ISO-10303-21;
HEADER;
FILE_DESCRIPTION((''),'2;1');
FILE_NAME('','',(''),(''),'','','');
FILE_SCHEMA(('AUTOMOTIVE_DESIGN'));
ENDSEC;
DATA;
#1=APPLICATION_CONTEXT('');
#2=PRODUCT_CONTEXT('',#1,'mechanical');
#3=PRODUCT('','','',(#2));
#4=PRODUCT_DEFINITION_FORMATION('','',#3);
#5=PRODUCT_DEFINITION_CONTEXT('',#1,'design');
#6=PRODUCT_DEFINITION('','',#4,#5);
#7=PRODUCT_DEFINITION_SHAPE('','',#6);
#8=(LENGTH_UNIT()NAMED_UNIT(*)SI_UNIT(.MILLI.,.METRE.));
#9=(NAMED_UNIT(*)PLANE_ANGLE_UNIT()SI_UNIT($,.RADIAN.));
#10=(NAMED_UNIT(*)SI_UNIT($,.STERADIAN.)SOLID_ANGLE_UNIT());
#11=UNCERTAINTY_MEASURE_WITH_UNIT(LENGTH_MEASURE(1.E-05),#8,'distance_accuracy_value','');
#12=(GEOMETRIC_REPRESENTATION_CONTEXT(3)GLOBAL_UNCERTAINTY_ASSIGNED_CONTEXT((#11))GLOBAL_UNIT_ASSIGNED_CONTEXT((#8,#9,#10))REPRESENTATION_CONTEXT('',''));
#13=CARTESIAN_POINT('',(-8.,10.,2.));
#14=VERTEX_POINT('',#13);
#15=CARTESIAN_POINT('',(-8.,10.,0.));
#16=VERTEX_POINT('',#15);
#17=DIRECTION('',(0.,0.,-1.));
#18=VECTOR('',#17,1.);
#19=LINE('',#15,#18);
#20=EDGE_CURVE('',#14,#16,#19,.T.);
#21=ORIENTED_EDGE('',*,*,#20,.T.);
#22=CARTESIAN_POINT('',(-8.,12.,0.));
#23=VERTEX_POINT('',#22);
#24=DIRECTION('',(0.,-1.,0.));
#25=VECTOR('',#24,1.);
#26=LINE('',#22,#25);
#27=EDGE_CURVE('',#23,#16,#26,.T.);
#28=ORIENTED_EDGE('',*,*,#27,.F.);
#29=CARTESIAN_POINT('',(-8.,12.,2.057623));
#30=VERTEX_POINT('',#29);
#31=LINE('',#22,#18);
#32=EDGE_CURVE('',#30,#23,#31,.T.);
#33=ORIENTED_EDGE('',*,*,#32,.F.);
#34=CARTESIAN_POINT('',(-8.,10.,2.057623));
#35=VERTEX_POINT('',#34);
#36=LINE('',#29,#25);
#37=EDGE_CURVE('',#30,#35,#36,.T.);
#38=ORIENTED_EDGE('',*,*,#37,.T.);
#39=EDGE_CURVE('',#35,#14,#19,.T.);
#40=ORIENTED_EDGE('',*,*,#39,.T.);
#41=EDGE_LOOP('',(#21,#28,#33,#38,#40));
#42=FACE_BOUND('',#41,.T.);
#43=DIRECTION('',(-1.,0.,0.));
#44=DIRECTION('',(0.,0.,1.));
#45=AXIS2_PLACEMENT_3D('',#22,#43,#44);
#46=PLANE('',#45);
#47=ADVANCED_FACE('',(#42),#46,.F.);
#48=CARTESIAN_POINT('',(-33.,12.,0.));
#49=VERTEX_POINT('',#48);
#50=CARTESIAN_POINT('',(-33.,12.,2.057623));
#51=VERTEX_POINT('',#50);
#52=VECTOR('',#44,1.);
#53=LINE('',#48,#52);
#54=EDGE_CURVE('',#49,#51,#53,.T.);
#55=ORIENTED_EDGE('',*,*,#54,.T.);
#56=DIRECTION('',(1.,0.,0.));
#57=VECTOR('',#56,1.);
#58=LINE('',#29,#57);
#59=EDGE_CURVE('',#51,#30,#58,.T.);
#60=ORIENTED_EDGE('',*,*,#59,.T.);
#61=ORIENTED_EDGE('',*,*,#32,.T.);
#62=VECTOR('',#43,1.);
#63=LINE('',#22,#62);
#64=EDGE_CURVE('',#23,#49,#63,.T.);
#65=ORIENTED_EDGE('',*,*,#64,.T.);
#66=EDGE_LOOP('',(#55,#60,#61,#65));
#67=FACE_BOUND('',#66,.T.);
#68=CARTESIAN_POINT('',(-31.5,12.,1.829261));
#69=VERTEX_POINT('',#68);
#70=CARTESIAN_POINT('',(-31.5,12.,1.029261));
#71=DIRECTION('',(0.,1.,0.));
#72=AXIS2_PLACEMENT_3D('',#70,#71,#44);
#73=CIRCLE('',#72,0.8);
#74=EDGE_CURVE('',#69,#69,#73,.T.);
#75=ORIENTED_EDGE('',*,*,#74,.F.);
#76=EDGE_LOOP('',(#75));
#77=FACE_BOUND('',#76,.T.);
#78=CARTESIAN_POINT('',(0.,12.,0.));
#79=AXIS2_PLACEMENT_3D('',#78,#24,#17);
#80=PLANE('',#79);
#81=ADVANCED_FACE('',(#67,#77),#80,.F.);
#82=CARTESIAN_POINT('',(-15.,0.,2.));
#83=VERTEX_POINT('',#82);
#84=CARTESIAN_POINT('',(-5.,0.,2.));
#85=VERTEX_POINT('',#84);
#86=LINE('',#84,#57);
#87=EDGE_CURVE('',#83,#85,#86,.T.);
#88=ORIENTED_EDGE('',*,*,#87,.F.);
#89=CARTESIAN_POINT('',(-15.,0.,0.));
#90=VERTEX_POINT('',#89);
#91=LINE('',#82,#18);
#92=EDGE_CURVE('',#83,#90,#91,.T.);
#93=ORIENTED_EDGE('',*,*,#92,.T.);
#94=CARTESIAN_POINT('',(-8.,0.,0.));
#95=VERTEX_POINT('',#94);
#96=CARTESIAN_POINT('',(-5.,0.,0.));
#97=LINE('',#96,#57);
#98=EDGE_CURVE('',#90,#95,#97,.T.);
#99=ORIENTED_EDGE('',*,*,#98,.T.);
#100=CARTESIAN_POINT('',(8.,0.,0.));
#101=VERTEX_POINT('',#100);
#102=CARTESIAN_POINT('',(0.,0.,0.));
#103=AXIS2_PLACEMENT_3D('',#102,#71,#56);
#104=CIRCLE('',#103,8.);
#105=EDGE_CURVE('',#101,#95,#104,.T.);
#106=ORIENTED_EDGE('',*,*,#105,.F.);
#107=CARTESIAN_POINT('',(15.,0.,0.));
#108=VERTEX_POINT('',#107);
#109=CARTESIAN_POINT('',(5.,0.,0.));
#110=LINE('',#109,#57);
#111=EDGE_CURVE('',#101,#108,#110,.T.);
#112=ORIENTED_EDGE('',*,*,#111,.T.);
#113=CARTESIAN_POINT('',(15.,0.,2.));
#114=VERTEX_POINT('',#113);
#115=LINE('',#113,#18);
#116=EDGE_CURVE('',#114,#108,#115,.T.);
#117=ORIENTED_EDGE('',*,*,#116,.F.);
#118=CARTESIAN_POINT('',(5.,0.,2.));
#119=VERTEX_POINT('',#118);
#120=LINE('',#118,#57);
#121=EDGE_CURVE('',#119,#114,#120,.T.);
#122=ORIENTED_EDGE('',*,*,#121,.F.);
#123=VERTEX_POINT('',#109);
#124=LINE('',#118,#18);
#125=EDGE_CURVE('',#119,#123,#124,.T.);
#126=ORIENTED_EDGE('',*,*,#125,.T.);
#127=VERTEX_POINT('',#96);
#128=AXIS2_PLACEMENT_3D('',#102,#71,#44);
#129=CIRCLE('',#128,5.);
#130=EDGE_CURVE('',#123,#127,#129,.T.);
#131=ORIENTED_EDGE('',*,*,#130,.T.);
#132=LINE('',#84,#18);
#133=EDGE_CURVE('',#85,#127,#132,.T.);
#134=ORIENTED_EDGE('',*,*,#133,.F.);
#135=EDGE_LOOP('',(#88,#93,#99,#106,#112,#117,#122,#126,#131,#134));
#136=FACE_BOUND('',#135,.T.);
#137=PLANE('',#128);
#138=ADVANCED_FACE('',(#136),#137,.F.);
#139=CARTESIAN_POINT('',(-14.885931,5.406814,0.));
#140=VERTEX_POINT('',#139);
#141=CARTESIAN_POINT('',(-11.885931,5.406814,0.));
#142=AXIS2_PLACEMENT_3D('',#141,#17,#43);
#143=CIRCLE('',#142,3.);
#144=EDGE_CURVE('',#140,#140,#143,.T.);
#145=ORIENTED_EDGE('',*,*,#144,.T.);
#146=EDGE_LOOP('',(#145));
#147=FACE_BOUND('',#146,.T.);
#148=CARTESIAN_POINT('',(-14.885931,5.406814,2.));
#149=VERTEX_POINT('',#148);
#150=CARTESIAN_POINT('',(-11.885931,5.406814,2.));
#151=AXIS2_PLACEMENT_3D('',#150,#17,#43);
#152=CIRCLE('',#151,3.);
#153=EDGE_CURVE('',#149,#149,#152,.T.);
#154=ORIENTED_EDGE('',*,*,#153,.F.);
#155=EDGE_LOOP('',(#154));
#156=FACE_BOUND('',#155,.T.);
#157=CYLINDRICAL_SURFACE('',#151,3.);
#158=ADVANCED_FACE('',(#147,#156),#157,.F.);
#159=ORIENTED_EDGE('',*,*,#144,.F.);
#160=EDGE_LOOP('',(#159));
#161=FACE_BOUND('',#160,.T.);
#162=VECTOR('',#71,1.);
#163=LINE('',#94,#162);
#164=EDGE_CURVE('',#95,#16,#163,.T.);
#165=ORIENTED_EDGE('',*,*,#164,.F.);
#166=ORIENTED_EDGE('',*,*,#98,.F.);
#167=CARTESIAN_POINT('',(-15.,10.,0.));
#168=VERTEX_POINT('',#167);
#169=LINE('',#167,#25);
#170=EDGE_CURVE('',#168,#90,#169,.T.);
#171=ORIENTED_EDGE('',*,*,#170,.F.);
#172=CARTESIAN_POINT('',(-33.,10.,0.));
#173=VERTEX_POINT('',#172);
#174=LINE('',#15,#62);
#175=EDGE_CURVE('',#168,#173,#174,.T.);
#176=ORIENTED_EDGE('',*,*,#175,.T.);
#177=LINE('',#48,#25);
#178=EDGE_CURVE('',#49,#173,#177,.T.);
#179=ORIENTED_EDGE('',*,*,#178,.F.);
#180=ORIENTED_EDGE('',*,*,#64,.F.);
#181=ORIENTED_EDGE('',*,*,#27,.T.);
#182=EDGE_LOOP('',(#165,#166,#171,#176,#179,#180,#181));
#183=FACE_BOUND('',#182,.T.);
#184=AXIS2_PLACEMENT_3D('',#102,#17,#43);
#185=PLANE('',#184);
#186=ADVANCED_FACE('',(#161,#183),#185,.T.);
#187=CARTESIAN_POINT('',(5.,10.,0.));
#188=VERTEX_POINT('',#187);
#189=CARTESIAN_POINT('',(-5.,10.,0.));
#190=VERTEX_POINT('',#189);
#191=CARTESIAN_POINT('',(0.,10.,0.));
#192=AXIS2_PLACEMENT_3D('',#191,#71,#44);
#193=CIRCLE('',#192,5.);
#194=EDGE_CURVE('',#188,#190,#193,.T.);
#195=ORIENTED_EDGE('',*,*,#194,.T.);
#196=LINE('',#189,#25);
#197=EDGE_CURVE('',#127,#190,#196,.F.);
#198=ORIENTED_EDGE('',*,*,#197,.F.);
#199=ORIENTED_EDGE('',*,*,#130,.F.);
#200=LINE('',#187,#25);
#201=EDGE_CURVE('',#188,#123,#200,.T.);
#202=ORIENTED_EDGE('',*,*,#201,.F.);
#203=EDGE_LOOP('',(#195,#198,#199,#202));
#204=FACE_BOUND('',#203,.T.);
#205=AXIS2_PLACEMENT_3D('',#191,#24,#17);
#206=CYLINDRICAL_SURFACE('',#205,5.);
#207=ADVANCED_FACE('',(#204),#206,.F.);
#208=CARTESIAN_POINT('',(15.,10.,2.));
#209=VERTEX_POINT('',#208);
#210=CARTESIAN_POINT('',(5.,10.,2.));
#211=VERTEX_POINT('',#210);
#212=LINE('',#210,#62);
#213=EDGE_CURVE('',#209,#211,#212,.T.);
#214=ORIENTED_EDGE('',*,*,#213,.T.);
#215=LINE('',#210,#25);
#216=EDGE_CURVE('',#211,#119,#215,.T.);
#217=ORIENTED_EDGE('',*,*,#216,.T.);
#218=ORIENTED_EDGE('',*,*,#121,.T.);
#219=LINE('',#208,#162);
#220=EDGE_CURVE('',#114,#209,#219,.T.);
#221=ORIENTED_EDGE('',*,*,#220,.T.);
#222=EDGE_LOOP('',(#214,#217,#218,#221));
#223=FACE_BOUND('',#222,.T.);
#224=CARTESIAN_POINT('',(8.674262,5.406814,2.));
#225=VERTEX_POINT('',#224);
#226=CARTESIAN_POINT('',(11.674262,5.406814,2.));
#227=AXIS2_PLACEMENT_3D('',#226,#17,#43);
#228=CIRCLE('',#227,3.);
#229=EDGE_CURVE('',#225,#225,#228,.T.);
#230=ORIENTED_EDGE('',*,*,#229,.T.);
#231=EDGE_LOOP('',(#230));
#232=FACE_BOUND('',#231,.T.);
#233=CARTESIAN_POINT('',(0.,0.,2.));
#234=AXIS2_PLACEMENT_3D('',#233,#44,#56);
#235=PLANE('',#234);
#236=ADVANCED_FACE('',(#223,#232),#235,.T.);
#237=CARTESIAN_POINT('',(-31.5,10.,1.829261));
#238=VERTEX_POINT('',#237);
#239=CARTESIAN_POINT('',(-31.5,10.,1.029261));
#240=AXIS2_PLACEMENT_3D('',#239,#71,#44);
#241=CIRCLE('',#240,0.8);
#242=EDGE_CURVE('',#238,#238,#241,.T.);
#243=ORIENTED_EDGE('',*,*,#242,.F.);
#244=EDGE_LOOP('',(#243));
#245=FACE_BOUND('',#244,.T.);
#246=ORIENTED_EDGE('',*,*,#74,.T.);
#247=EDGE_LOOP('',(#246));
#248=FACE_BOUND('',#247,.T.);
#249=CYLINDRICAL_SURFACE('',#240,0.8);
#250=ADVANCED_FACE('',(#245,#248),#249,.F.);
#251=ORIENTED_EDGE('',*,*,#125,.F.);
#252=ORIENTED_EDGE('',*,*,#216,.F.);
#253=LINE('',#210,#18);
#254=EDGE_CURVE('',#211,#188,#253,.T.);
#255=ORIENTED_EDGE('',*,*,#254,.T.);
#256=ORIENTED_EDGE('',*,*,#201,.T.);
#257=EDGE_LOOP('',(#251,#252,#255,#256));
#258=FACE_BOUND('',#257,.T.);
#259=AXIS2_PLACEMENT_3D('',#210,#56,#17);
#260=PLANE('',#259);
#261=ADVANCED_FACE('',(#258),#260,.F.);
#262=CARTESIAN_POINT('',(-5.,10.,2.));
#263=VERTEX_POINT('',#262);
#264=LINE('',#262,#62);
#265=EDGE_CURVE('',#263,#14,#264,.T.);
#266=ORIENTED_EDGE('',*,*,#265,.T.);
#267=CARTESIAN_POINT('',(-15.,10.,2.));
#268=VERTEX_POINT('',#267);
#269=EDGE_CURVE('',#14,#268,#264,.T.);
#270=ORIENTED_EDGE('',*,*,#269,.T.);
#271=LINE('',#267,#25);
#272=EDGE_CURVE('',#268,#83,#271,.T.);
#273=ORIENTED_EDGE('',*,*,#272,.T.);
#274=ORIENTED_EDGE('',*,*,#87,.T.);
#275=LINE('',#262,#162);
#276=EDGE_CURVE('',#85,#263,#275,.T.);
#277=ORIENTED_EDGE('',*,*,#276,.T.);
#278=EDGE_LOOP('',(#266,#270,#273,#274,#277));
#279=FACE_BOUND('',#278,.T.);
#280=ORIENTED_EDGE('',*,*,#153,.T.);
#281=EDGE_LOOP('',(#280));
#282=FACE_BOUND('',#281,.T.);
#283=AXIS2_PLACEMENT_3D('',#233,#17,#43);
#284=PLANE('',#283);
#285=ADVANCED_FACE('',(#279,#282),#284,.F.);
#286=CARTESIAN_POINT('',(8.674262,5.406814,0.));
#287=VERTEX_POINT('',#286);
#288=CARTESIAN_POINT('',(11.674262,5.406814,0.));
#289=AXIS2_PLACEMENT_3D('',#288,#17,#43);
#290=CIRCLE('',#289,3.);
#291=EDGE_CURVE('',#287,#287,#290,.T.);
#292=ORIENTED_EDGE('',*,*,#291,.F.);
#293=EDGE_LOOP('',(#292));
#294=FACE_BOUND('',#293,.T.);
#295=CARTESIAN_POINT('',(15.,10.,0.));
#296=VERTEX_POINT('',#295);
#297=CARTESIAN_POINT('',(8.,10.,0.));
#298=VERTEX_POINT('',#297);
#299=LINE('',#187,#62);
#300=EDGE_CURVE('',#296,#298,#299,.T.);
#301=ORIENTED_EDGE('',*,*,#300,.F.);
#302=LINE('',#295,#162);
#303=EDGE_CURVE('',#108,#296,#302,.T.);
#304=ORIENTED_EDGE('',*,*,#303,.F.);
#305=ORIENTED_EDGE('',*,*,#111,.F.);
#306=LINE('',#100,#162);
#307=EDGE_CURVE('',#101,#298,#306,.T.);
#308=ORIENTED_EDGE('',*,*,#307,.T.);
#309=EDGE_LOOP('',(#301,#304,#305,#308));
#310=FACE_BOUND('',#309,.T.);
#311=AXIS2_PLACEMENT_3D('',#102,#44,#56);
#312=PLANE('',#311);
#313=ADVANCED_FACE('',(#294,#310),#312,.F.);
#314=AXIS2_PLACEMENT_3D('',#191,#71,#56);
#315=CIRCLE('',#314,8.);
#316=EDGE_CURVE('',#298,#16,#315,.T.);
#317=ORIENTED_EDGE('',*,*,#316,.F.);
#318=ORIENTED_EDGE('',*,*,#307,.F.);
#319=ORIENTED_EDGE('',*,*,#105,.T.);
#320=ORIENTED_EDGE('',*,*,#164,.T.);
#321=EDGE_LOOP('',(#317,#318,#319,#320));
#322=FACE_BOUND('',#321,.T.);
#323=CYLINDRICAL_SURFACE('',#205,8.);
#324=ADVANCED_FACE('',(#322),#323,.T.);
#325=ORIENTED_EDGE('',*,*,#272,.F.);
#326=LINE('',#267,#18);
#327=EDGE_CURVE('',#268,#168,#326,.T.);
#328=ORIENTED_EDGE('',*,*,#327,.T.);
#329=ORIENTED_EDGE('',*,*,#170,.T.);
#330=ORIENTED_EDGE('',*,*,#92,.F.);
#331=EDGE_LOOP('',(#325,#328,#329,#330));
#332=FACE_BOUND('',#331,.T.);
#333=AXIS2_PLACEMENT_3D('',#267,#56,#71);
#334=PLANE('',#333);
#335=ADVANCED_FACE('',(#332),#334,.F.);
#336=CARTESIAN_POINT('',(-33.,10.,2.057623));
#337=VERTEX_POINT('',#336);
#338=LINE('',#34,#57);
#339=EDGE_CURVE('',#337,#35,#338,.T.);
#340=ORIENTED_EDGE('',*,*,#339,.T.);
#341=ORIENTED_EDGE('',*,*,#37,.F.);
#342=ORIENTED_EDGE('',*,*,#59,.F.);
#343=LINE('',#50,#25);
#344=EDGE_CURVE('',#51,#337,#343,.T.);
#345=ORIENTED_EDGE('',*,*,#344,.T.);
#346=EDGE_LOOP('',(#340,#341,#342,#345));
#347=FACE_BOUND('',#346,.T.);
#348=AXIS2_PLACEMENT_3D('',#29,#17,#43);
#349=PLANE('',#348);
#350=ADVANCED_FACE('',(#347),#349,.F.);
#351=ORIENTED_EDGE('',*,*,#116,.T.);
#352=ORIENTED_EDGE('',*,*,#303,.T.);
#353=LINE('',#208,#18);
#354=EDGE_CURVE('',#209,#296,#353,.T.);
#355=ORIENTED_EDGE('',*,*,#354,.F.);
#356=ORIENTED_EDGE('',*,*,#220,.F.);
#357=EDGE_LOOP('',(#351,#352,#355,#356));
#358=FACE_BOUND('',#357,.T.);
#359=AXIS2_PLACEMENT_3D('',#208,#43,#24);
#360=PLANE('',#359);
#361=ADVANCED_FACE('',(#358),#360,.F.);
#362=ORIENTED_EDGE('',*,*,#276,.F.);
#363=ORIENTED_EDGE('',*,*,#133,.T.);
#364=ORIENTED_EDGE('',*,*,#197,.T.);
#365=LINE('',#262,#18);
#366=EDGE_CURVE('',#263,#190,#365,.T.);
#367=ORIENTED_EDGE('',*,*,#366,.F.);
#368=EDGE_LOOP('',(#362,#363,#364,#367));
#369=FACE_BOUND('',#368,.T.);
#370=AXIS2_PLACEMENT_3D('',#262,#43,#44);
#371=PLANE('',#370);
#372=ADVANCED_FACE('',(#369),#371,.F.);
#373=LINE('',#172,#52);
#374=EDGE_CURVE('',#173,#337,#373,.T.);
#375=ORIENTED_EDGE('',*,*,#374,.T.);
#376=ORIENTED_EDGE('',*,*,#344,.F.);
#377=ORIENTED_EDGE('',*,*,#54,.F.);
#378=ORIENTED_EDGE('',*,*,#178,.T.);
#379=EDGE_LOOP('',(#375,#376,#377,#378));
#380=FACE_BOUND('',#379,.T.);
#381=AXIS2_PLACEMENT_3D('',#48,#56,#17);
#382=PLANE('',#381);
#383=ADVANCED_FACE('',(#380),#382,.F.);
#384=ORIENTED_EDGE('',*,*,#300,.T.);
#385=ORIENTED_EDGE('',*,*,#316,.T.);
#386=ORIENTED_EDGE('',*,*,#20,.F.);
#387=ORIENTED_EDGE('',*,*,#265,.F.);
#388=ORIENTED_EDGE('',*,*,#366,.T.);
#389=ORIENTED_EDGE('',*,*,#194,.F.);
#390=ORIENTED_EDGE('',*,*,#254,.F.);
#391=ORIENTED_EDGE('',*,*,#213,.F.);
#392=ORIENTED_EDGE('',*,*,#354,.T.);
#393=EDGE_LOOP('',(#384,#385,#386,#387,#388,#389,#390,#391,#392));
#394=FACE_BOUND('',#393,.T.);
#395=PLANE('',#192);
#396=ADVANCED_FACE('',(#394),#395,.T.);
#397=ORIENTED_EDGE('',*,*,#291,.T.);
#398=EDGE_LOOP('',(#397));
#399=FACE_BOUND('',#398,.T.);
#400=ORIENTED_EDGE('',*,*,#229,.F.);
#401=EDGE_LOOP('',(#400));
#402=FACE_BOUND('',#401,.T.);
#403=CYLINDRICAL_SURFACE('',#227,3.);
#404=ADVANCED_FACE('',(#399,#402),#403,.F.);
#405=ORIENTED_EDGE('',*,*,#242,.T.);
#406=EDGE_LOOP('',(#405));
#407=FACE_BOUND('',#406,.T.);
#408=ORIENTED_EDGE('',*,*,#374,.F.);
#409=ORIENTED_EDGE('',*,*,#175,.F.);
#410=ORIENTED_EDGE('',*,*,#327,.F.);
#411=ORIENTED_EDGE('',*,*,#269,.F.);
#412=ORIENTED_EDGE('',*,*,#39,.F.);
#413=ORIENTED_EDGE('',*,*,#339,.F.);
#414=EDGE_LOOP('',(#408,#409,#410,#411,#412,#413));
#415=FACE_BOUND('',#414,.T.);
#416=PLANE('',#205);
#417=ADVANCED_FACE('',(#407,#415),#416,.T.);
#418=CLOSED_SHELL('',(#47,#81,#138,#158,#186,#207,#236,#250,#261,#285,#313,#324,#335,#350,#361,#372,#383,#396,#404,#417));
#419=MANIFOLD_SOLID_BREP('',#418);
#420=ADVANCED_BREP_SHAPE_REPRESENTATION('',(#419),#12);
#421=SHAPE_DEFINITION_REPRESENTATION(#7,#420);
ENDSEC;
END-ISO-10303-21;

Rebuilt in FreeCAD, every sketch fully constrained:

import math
import FreeCAD as App
import Part
import Sketcher
Q = App.Units.Quantity

doc = App.newDocument("Part")
body = doc.addObject("PartDesign::Body", "Body")

# Sketch on XZ plane
sketch1 = body.newObject("Sketcher::SketchObject", "Sketch")
sketch1.AttachmentSupport = (doc.getObject("XZ_Plane"), [""])
sketch1.MapMode = "FlatFace"
sketch1.addGeometry(Part.Circle(App.Vector(0, 0, 0), App.Vector(0, 0, 1), 8), False)
sketch1.addGeometry(Part.Circle(App.Vector(0, 0, 0), App.Vector(0, 0, 1), 5), False)
sketch1.addConstraint(Sketcher.Constraint("Coincident", 0, 3, -1, 1))
sketch1.addConstraint(Sketcher.Constraint("Coincident", 1, 3, -1, 1))
sketch1.addConstraint(Sketcher.Constraint("Diameter", 0, Q("16 mm")))
sketch1.addConstraint(Sketcher.Constraint("Diameter", 1, Q("10 mm")))
pad1 = body.newObject("PartDesign::Pad", "Pad")
pad1.Profile = sketch1
pad1.Length = 10
pad1.Reversed = True

# Sketch on XZ plane
sketch2 = body.newObject("Sketcher::SketchObject", "Sketch001")
sketch2.AttachmentSupport = (doc.getObject("XZ_Plane"), [""])
sketch2.MapMode = "FlatFace"
sketch2.AttachmentOffset = App.Placement(App.Vector(0, 0, -10), App.Rotation())
sketch2.addGeometry(Part.LineSegment(App.Vector(8, 0, 0), App.Vector(-8, 0, 0)), False)
sketch2.addGeometry(Part.ArcOfCircle(Part.Circle(App.Vector(0, 0, 0), App.Vector(0, 0, 1), 8), math.radians(0), math.radians(180)), False)
sketch2.addConstraint(Sketcher.Constraint("Coincident", 0, 1, 1, 1))
sketch2.addConstraint(Sketcher.Constraint("Coincident", 1, 2, 0, 2))
sketch2.addConstraint(Sketcher.Constraint("Horizontal", 0))
sketch2.addConstraint(Sketcher.Constraint("Coincident", 1, 3, -1, 1))
sketch2.addConstraint(Sketcher.Constraint("PointOnObject", 0, 1, -1))
sketch2.addConstraint(Sketcher.Constraint("Radius", 1, Q("8 mm")))
pocket1 = body.newObject("PartDesign::Pocket", "Pocket")
pocket1.Profile = sketch2
pocket1.Length = 10
pocket1.Reversed = True

# Sketch on XY plane
sketch3 = body.newObject("Sketcher::SketchObject", "Sketch002")
sketch3.AttachmentSupport = (doc.getObject("XY_Plane"), [""])
sketch3.MapMode = "FlatFace"
sketch3.addGeometry(Part.LineSegment(App.Vector(5, 10, 0), App.Vector(5, 0, 0)), False)
sketch3.addGeometry(Part.LineSegment(App.Vector(5, 0, 0), App.Vector(15, 0, 0)), False)
sketch3.addGeometry(Part.LineSegment(App.Vector(15, 0, 0), App.Vector(15, 10, 0)), False)
sketch3.addGeometry(Part.LineSegment(App.Vector(15, 10, 0), App.Vector(5, 10, 0)), False)
sketch3.addGeometry(Part.LineSegment(App.Vector(-15, 10, 0), App.Vector(-15, 0, 0)), False)
sketch3.addGeometry(Part.LineSegment(App.Vector(-15, 0, 0), App.Vector(-5, 0, 0)), False)
sketch3.addGeometry(Part.LineSegment(App.Vector(-5, 0, 0), App.Vector(-5, 10, 0)), False)
sketch3.addGeometry(Part.LineSegment(App.Vector(-5, 10, 0), App.Vector(-15, 10, 0)), False)
sketch3.addConstraint(Sketcher.Constraint("Coincident", 0, 2, 1, 1))
sketch3.addConstraint(Sketcher.Constraint("Coincident", 1, 2, 2, 1))
sketch3.addConstraint(Sketcher.Constraint("Coincident", 2, 2, 3, 1))
sketch3.addConstraint(Sketcher.Constraint("Coincident", 3, 2, 0, 1))
sketch3.addConstraint(Sketcher.Constraint("Coincident", 4, 2, 5, 1))
sketch3.addConstraint(Sketcher.Constraint("Coincident", 5, 2, 6, 1))
sketch3.addConstraint(Sketcher.Constraint("Coincident", 6, 2, 7, 1))
sketch3.addConstraint(Sketcher.Constraint("Coincident", 7, 2, 4, 1))
sketch3.addConstraint(Sketcher.Constraint("Vertical", 0))
sketch3.addConstraint(Sketcher.Constraint("Horizontal", 1))
sketch3.addConstraint(Sketcher.Constraint("Vertical", 2))
sketch3.addConstraint(Sketcher.Constraint("Horizontal", 3))
sketch3.addConstraint(Sketcher.Constraint("Vertical", 4))
sketch3.addConstraint(Sketcher.Constraint("Horizontal", 5))
sketch3.addConstraint(Sketcher.Constraint("Vertical", 6))
sketch3.addConstraint(Sketcher.Constraint("Horizontal", 7))
sketch3.addConstraint(Sketcher.Constraint("Symmetric", 1, 2, 4, 2, -1, 1))
sketch3.addConstraint(Sketcher.Constraint("Symmetric", 0, 2, 5, 2, -2))
sketch3.addConstraint(Sketcher.Constraint("Horizontal", 3, 2, 6, 2))
sketch3.addConstraint(Sketcher.Constraint("Equal", 7, 0))
sketch3.addConstraint(Sketcher.Constraint("DistanceX", 1, 1, 1, 2, Q("10 mm")))
sketch3.addConstraint(Sketcher.Constraint("DistanceX", -1, 1, 0, 2, Q("5 mm")))
pad2 = body.newObject("PartDesign::Pad", "Pad001")
pad2.Profile = sketch3
pad2.Length = 2

# Sketch on XY plane
sketch4 = body.newObject("Sketcher::SketchObject", "Sketch003")
sketch4.AttachmentSupport = (doc.getObject("XY_Plane"), [""])
sketch4.MapMode = "FlatFace"
sketch4.addGeometry(Part.Circle(App.Vector(11.674262, 5.406814, 0), App.Vector(0, 0, 1), 3), False)
sketch4.addGeometry(Part.Circle(App.Vector(-11.885931, 5.406814, 0), App.Vector(0, 0, 1), 3), False)
sketch4.addConstraint(Sketcher.Constraint("Equal", 0, 1))
sketch4.addConstraint(Sketcher.Constraint("Horizontal", 0, 3, 1, 3))
sketch4.addConstraint(Sketcher.Constraint("Diameter", 0, Q("6 mm")))
sketch4.addConstraint(Sketcher.Constraint("DistanceX", 1, 3, -1, 1, Q("11.885931 mm")))
sketch4.addConstraint(Sketcher.Constraint("DistanceX", -1, 1, 0, 3, Q("11.674262 mm")))
sketch4.addConstraint(Sketcher.Constraint("DistanceY", -1, 1, 0, 3, Q("5.406814 mm")))
pocket2 = body.newObject("PartDesign::Pocket", "Pocket001")
pocket2.Profile = sketch4
pocket2.Length = 2
pocket2.Reversed = True

# Sketch on XZ plane
sketch5 = body.newObject("Sketcher::SketchObject", "Sketch004")
sketch5.AttachmentSupport = (doc.getObject("XZ_Plane"), [""])
sketch5.MapMode = "FlatFace"
sketch5.AttachmentOffset = App.Placement(App.Vector(0, 0, -10), App.Rotation())
sketch5.addGeometry(Part.LineSegment(App.Vector(-33, 0, 0), App.Vector(-33, 2.057623, 0)), False)
sketch5.addGeometry(Part.LineSegment(App.Vector(-33, 2.057623, 0), App.Vector(-8, 2.057623, 0)), False)
sketch5.addGeometry(Part.LineSegment(App.Vector(-8, 2.057623, 0), App.Vector(-8, 0, 0)), False)
sketch5.addGeometry(Part.LineSegment(App.Vector(-8, 0, 0), App.Vector(-33, 0, 0)), False)
sketch5.addConstraint(Sketcher.Constraint("Coincident", 0, 2, 1, 1))
sketch5.addConstraint(Sketcher.Constraint("Coincident", 1, 2, 2, 1))
sketch5.addConstraint(Sketcher.Constraint("Coincident", 2, 2, 3, 1))
sketch5.addConstraint(Sketcher.Constraint("Coincident", 3, 2, 0, 1))
sketch5.addConstraint(Sketcher.Constraint("Vertical", 0))
sketch5.addConstraint(Sketcher.Constraint("Horizontal", 1))
sketch5.addConstraint(Sketcher.Constraint("Vertical", 2))
sketch5.addConstraint(Sketcher.Constraint("Horizontal", 3))
sketch5.addConstraint(Sketcher.Constraint("PointOnObject", 2, 2, -1))
sketch5.addConstraint(Sketcher.Constraint("DistanceX", 1, 1, 1, 2, Q("25 mm")))
sketch5.addConstraint(Sketcher.Constraint("DistanceX", 0, 2, -1, 1, Q("33 mm")))
sketch5.addConstraint(Sketcher.Constraint("DistanceY", 0, 1, 0, 2, Q("2.057623 mm")))
pad3 = body.newObject("PartDesign::Pad", "Pad002")
pad3.Profile = sketch5
pad3.Length = 2
pad3.Reversed = True

# Sketch on XZ plane
sketch6 = body.newObject("Sketcher::SketchObject", "Sketch005")
sketch6.AttachmentSupport = (doc.getObject("XZ_Plane"), [""])
sketch6.MapMode = "FlatFace"
sketch6.AttachmentOffset = App.Placement(App.Vector(0, 0, -12), App.Rotation())
sketch6.addGeometry(Part.Circle(App.Vector(-31.5, 1.029261, 0), App.Vector(0, 0, 1), 0.8), False)
sketch6.addConstraint(Sketcher.Constraint("Diameter", 0, Q("1.6 mm")))
sketch6.addConstraint(Sketcher.Constraint("DistanceX", 0, 3, -1, 1, Q("31.5 mm")))
sketch6.addConstraint(Sketcher.Constraint("DistanceY", -1, 1, 0, 3, Q("1.029261 mm")))
pocket3 = body.newObject("PartDesign::Pocket", "Pocket002")
pocket3.Profile = sketch6
pocket3.Length = 2
pocket3.Reversed = True

doc.recompute()
